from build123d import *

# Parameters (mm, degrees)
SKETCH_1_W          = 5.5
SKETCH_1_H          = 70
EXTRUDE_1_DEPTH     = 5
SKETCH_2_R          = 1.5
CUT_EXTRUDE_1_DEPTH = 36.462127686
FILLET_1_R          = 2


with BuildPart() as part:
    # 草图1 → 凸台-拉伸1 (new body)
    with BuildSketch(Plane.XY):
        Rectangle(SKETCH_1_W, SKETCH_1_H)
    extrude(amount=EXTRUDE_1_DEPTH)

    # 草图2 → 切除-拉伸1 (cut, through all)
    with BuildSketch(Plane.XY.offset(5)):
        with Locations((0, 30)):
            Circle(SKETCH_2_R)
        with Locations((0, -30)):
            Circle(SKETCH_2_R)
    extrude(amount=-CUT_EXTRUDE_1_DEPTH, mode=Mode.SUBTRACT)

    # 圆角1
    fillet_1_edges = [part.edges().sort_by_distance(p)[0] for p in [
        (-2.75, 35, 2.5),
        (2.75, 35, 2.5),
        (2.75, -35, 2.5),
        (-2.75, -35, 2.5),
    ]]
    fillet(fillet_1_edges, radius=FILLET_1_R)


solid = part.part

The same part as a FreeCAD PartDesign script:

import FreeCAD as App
import Part
import Sketcher
from FreeCAD import Vector
Q = App.Units.Quantity


def edges_at(feature, points):
    """Names of the edges that pass closest to the given points."""
    edges = feature.Shape.Edges
    near = lambda p: min(range(len(edges)), key=lambda i: edges[i].distToShape(Part.Vertex(*p))[0])
    return sorted({f"Edge{near(p) + 1}" for p in points})


def add_polygon(sketch, points):
    """Adds a closed chain of lines whose ends are joined by coincident constraints."""
    first, n = sketch.GeometryCount, len(points)
    for a, b in zip(points, points[1:] + points[:1]):
        sketch.addGeometry(Part.LineSegment(App.Vector(*a, 0), App.Vector(*b, 0)), False)
    for i in range(n):
        sketch.addConstraint(Sketcher.Constraint("Coincident", first + i, 2, first + (i + 1) % n, 1))

doc = App.newDocument("Part")
params = doc.addObject("Spreadsheet::Sheet", "Params")
for row, (alias, value) in enumerate([
    ("sketch1_height", "70 mm"),
    ("sketch1_width", "5.5 mm"),
    ("pad1_length", "5 mm"),
    ("sketch2_diameter", "3 mm"),
    ("fillet_radius", "2 mm"),
], start=1):
    params.set(f"A{row}", alias)
    params.set(f"B{row}", "=" + value)
    params.setAlias(f"B{row}", alias)

body = doc.addObject("PartDesign::Body", "Body")

# Sketch on XY plane
sketch1 = doc.addObject("Sketcher::SketchObject", "Sketch")
body.addObject(sketch1)
sketch1.AttachmentSupport = (doc.XY_Plane, [""])
sketch1.MapMode = "FlatFace"
add_polygon(sketch1, [(-3, 35), (-3, -35), (3, -35), (3, 35)])  # lines 0-3
sketch1.addConstraint(Sketcher.Constraint("Vertical", 0))
sketch1.addConstraint(Sketcher.Constraint("Horizontal", 1))
sketch1.addConstraint(Sketcher.Constraint("Vertical", 2))
sketch1.addConstraint(Sketcher.Constraint("Horizontal", 3))
sketch1.addConstraint(Sketcher.Constraint("Symmetric", 0, 2, 2, 2, -1, 1))
sketch1.addConstraint(Sketcher.Constraint("DistanceY", 0, 2, 0, 1, Q("70 mm")))
sketch1.addConstraint(Sketcher.Constraint("DistanceX", 1, 1, 1, 2, Q("5.5 mm")))
sketch1.setExpression("Constraints[9]", "Params.sketch1_height")
sketch1.setExpression("Constraints[10]", "Params.sketch1_width")
pad1 = doc.addObject("PartDesign::Pad", "Pad")
body.addObject(pad1)
pad1.Profile = sketch1
pad1.setExpression("Length", "Params.pad1_length")

# Sketch on XY plane
sketch2 = doc.addObject("Sketcher::SketchObject", "Sketch001")
body.addObject(sketch2)
sketch2.AttachmentSupport = (doc.XY_Plane, [""])
sketch2.MapMode = "FlatFace"
sketch2.AttachmentOffset = App.Placement(Vector(0, 0, 5), App.Rotation())
sketch2.addGeometry(Part.Circle(Vector(0, 30, 0), Vector(0, 0, 1), 1.5), False)
sketch2.addGeometry(Part.Circle(Vector(0, -30, 0), Vector(0, 0, 1), 1.5), False)
sketch2.addConstraint(Sketcher.Constraint("Equal", 0, 1))
sketch2.addConstraint(Sketcher.Constraint("Symmetric", 0, 3, 1, 3, -1, 1))
sketch2.addConstraint(Sketcher.Constraint("PointOnObject", 0, 3, -2))
sketch2.addConstraint(Sketcher.Constraint("Diameter", 0, Q("3 mm")))
sketch2.addConstraint(Sketcher.Constraint("DistanceY", -1, 1, 0, 3, Q("30 mm")))
sketch2.setExpression("Constraints[3]", "Params.sketch2_diameter")
pocket1 = doc.addObject("PartDesign::Pocket", "Pocket")
body.addObject(pocket1)
pocket1.Profile = sketch2
pocket1.Type = "ThroughAll"
doc.recompute()

fillet = doc.addObject("PartDesign::Fillet", "Fillet")
body.addObject(fillet)
fillet.Base = (pocket1, edges_at(pocket1, [
    (-2.75, 35, 2.5),
    (2.75, 35, 2.5),
    (2.75, -35, 2.5),
    (-2.75, -35, 2.5),
]))
fillet.setExpression("Radius", "Params.fillet_radius")

doc.recompute()
